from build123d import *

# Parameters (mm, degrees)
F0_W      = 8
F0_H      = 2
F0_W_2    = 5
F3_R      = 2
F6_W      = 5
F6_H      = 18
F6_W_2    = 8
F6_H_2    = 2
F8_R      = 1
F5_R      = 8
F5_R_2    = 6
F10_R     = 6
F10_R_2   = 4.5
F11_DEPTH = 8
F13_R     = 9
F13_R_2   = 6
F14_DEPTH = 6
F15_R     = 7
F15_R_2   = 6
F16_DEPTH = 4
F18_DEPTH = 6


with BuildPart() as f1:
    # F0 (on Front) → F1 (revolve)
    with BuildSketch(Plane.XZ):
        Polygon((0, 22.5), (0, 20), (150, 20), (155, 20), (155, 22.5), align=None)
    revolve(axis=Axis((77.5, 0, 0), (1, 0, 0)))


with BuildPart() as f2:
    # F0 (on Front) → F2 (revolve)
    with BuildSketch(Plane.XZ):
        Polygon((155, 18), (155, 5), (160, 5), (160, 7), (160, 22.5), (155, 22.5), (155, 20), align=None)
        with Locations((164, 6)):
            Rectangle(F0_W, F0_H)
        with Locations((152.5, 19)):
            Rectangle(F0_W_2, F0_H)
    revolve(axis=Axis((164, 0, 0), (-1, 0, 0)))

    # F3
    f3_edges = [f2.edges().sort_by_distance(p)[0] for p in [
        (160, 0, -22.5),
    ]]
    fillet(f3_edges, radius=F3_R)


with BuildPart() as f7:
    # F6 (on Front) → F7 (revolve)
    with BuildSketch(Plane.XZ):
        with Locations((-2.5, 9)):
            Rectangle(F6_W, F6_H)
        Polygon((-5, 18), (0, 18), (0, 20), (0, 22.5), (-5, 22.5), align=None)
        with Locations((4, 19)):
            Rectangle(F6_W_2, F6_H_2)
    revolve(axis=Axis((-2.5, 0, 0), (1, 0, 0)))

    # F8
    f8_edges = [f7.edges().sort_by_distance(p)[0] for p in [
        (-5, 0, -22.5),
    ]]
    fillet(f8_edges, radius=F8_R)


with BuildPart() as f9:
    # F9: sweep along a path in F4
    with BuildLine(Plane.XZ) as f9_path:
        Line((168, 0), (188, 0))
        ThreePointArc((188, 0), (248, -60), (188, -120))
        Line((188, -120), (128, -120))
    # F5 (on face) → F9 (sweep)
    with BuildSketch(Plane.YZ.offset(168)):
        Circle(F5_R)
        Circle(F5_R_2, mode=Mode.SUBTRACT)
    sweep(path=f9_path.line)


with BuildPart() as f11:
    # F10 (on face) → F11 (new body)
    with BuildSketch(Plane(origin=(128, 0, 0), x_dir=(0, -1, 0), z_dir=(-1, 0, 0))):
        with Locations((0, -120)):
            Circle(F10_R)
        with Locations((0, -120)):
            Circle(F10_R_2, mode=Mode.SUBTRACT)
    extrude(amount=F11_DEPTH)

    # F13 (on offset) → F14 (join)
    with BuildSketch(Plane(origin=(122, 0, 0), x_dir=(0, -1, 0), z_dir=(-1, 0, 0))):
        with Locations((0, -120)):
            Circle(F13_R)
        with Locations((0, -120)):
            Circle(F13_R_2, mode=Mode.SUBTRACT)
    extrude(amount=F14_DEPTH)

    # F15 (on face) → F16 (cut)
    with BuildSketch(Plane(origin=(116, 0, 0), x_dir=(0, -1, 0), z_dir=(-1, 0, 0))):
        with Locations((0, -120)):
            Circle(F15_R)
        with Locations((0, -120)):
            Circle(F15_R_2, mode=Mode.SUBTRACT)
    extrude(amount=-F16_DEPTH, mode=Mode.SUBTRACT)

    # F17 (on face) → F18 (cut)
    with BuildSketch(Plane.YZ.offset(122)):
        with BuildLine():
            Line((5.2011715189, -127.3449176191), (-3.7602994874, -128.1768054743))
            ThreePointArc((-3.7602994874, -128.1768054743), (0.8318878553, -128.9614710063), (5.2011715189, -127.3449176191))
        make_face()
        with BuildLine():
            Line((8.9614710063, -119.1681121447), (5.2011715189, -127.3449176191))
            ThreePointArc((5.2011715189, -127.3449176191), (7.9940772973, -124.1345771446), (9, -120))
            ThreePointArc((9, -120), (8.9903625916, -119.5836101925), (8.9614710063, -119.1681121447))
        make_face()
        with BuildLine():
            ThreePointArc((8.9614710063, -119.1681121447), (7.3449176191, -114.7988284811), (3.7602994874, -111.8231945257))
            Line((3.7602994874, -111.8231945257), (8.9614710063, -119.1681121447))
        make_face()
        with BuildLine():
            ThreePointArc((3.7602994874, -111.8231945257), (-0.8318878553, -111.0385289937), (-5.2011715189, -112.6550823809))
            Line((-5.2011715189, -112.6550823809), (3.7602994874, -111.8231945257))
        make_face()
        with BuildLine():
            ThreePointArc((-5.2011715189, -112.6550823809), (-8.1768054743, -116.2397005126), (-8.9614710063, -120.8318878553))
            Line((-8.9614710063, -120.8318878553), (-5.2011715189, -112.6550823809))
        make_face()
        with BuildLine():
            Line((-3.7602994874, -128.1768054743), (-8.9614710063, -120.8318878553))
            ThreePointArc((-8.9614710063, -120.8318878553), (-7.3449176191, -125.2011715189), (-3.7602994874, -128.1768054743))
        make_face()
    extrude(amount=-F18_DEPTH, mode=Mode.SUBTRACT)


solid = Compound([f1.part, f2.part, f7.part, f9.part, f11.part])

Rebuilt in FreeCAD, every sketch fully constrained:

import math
import FreeCAD as App
import Part
import Sketcher
Q = App.Units.Quantity


def edges_at(feature, points):
    """Names of the edges that pass closest to the given points."""
    edges = feature.Shape.Edges
    near = lambda p: min(range(len(edges)), key=lambda i: edges[i].distToShape(Part.Vertex(*p))[0])
    return sorted({f"Edge{near(p) + 1}" for p in points})

doc = App.newDocument("Part")
body = doc.addObject("PartDesign::Body", "Body")

# Sketch on XZ plane
sketch1 = body.newObject("Sketcher::SketchObject", "Sketch")
sketch1.AttachmentSupport = (doc.getObject("XZ_Plane"), [""])
sketch1.MapMode = "FlatFace"
sketch1.addGeometry(Part.LineSegment(App.Vector(0, 22.5, 0), App.Vector(0, 20, 0)), False)
sketch1.addGeometry(Part.LineSegment(App.Vector(0, 20, 0), App.Vector(155, 20, 0)), False)
sketch1.addGeometry(Part.LineSegment(App.Vector(155, 20, 0), App.Vector(155, 22.5, 0)), False)
sketch1.addGeometry(Part.LineSegment(App.Vector(155, 22.5, 0), App.Vector(0, 22.5, 0)), False)
sketch1.addConstraint(Sketcher.Constraint("Coincident", 0, 2, 1, 1))
sketch1.addConstraint(Sketcher.Constraint("Coincident", 1, 2, 2, 1))
sketch1.addConstraint(Sketcher.Constraint("Coincident", 2, 2, 3, 1))
sketch1.addConstraint(Sketcher.Constraint("Coincident", 3, 2, 0, 1))
sketch1.addConstraint(Sketcher.Constraint("Vertical", 0))
sketch1.addConstraint(Sketcher.Constraint("Horizontal", 1))
sketch1.addConstraint(Sketcher.Constraint("Vertical", 2))
sketch1.addConstraint(Sketcher.Constraint("Horizontal", 3))
sketch1.addConstraint(Sketcher.Constraint("PointOnObject", 0, 2, -2))
sketch1.addConstraint(Sketcher.Constraint("DistanceX", 1, 1, 1, 2, Q("155 mm")))
sketch1.addConstraint(Sketcher.Constraint("DistanceY", 0, 2, 0, 1, Q("2.5 mm")))
sketch1.addConstraint(Sketcher.Constraint("DistanceY", -1, 1, 0, 2, Q("20 mm")))
revolution = body.newObject("PartDesign::Revolution", "Revolution")
revolution.Profile = sketch1
revolution.ReferenceAxis = (sketch1, ["H_Axis"])
revolution.Angle = 360
body2 = doc.addObject("PartDesign::Body", "Body001")

# Sketch on XZ plane
sketch2 = body2.newObject("Sketcher::SketchObject", "Sketch001")
sketch2.AttachmentSupport = (doc.getObject("XZ_Plane001"), [""])
sketch2.MapMode = "FlatFace"
sketch2.addGeometry(Part.LineSegment(App.Vector(155, 5, 0), App.Vector(168, 5, 0)), False)
sketch2.addGeometry(Part.LineSegment(App.Vector(168, 5, 0), App.Vector(168, 7, 0)), False)
sketch2.addGeometry(Part.LineSegment(App.Vector(168, 7, 0), App.Vector(160, 7, 0)), False)
sketch2.addGeometry(Part.LineSegment(App.Vector(160, 7, 0), App.Vector(160, 22.5, 0)), False)
sketch2.addGeometry(Part.LineSegment(App.Vector(160, 22.5, 0), App.Vector(155, 22.5, 0)), False)
sketch2.addGeometry(Part.LineSegment(App.Vector(155, 22.5, 0), App.Vector(155, 20, 0)), False)
sketch2.addGeometry(Part.LineSegment(App.Vector(155, 20, 0), App.Vector(150, 20, 0)), False)
sketch2.addGeometry(Part.LineSegment(App.Vector(150, 20, 0), App.Vector(150, 18, 0)), False)
sketch2.addGeometry(Part.LineSegment(App.Vector(150, 18, 0), App.Vector(155, 18, 0)), False)
sketch2.addGeometry(Part.LineSegment(App.Vector(155, 18, 0), App.Vector(155, 5, 0)), False)
sketch2.addConstraint(Sketcher.Constraint("Coincident", 0, 2, 1, 1))
sketch2.addConstraint(Sketcher.Constraint("Coincident", 1, 2, 2, 1))
sketch2.addConstraint(Sketcher.Constraint("Coincident", 2, 2, 3, 1))
sketch2.addConstraint(Sketcher.Constraint("Coincident", 3, 2, 4, 1))
sketch2.addConstraint(Sketcher.Constraint("Coincident", 4, 2, 5, 1))
sketch2.addConstraint(Sketcher.Constraint("Coincident", 5, 2, 6, 1))
sketch2.addConstraint(Sketcher.Constraint("Coincident", 6, 2, 7, 1))
sketch2.addConstraint(Sketcher.Constraint("Coincident", 7, 2, 8, 1))
sketch2.addConstraint(Sketcher.Constraint("Coincident", 8, 2, 9, 1))
sketch2.addConstraint(Sketcher.Constraint("Coincident", 9, 2, 0, 1))
sketch2.addConstraint(Sketcher.Constraint("Horizontal", 0))
sketch2.addConstraint(Sketcher.Constraint("Vertical", 1))
sketch2.addConstraint(Sketcher.Constraint("Horizontal", 2))
sketch2.addConstraint(Sketcher.Constraint("Vertical", 3))
sketch2.addConstraint(Sketcher.Constraint("Horizontal", 4))
sketch2.addConstraint(Sketcher.Constraint("Vertical", 5))
sketch2.addConstraint(Sketcher.Constraint("Horizontal", 6))
sketch2.addConstraint(Sketcher.Constraint("Vertical", 7))
sketch2.addConstraint(Sketcher.Constraint("Horizontal", 8))
sketch2.addConstraint(Sketcher.Constraint("Vertical", 9))
sketch2.addConstraint(Sketcher.Constraint("Vertical", 5, 2, 8, 2))
sketch2.addConstraint(Sketcher.Constraint("Equal", 4, 6))
sketch2.addConstraint(Sketcher.Constraint("Equal", 1, 7))
sketch2.addConstraint(Sketcher.Constraint("Equal", 0, 9))
sketch2.addConstraint(Sketcher.Constraint("DistanceX", 0, 1, 0, 2, Q("13 mm")))
sketch2.addConstraint(Sketcher.Constraint("DistanceX", 2, 2, 2, 1, Q("8 mm")))
sketch2.addConstraint(Sketcher.Constraint("DistanceY", 1, 1, 1, 2, Q("2 mm")))
sketch2.addConstraint(Sketcher.Constraint("DistanceY", 3, 1, 3, 2, Q("15.5 mm")))
sketch2.addConstraint(Sketcher.Constraint("DistanceX", -1, 1, 0, 2, Q("168 mm")))
sketch2.addConstraint(Sketcher.Constraint("DistanceY", -1, 1, 0, 2, Q("5 mm")))
revolution2 = body2.newObject("PartDesign::Revolution", "Revolution001")
revolution2.Profile = sketch2
revolution2.ReferenceAxis = (sketch2, ["H_Axis"])
revolution2.Angle = 360
doc.recompute()

fillet = body2.newObject("PartDesign::Fillet", "Fillet")
fillet.Base = (revolution2, edges_at(revolution2, [(160, 0, -22.5)]))
fillet.Radius = 2
body3 = doc.addObject("PartDesign::Body", "Body002")

# Sketch on XZ plane
sketch3 = body3.newObject("Sketcher::SketchObject", "Sketch002")
sketch3.AttachmentSupport = (doc.getObject("XZ_Plane002"), [""])
sketch3.MapMode = "FlatFace"
sketch3.addGeometry(Part.LineSegment(App.Vector(-5, 0, 0), App.Vector(0, 0, 0)), False)
sketch3.addGeometry(Part.LineSegment(App.Vector(0, 0, 0), App.Vector(0, 18, 0)), False)
sketch3.addGeometry(Part.LineSegment(App.Vector(0, 18, 0), App.Vector(8, 18, 0)), False)
sketch3.addGeometry(Part.LineSegment(App.Vector(8, 18, 0), App.Vector(8, 20, 0)), False)
sketch3.addGeometry(Part.LineSegment(App.Vector(8, 20, 0), App.Vector(0, 20, 0)), False)
sketch3.addGeometry(Part.LineSegment(App.Vector(0, 20, 0), App.Vector(0, 22.5, 0)), False)
sketch3.addGeometry(Part.LineSegment(App.Vector(0, 22.5, 0), App.Vector(-5, 22.5, 0)), False)
sketch3.addGeometry(Part.LineSegment(App.Vector(-5, 22.5, 0), App.Vector(-5, 0, 0)), False)
sketch3.addConstraint(Sketcher.Constraint("Coincident", 0, 2, 1, 1))
sketch3.addConstraint(Sketcher.Constraint("Coincident", 1, 2, 2, 1))
sketch3.addConstraint(Sketcher.Constraint("Coincident", 2, 2, 3, 1))
sketch3.addConstraint(Sketcher.Constraint("Coincident", 3, 2, 4, 1))
sketch3.addConstraint(Sketcher.Constraint("Coincident", 4, 2, 5, 1))
sketch3.addConstraint(Sketcher.Constraint("Coincident", 5, 2, 6, 1))
sketch3.addConstraint(Sketcher.Constraint("Coincident", 6, 2, 7, 1))
sketch3.addConstraint(Sketcher.Constraint("Coincident", 7, 2, 0, 1))
sketch3.addConstraint(Sketcher.Constraint("Horizontal", 0))
sketch3.addConstraint(Sketcher.Constraint("Vertical", 1))
sketch3.addConstraint(Sketcher.Constraint("Horizontal", 2))
sketch3.addConstraint(Sketcher.Constraint("Vertical", 3))
sketch3.addConstraint(Sketcher.Constraint("Horizontal", 4))
sketch3.addConstraint(Sketcher.Constraint("Vertical", 5))
sketch3.addConstraint(Sketcher.Constraint("Horizontal", 6))
sketch3.addConstraint(Sketcher.Constraint("Vertical", 7))
sketch3.addConstraint(Sketcher.Constraint("Coincident", 0, 2, -1, 1))
sketch3.addConstraint(Sketcher.Constraint("PointOnObject", 4, 2, -2))
sketch3.addConstraint(Sketcher.Constraint("DistanceX", 0, 1, 0, 2, Q("5 mm")))
sketch3.addConstraint(Sketcher.Constraint("DistanceX", 2, 1, 2, 2, Q("8 mm")))
sketch3.addConstraint(Sketcher.Constraint("DistanceY", 1, 1, 1, 2, Q("18 mm")))
sketch3.addConstraint(Sketcher.Constraint("DistanceY", 3, 1, 3, 2, Q("2 mm")))
sketch3.addConstraint(Sketcher.Constraint("DistanceY", 5, 1, 5, 2, Q("2.5 mm")))
revolution3 = body3.newObject("PartDesign::Revolution", "Revolution002")
revolution3.Profile = sketch3
revolution3.ReferenceAxis = (sketch3, ["H_Axis"])
revolution3.Angle = 360
doc.recompute()

fillet2 = body3.newObject("PartDesign::Fillet", "Fillet001")
fillet2.Base = (revolution3, edges_at(revolution3, [(-5, 0, -22.5)]))
fillet2.Radius = 1
body4 = doc.addObject("PartDesign::Body", "Body003")

# Sketch on YZ plane
sketch4 = body4.newObject("Sketcher::SketchObject", "Sketch003")
sketch4.AttachmentSupport = (doc.getObject("YZ_Plane003"), [""])
sketch4.MapMode = "FlatFace"
sketch4.AttachmentOffset = App.Placement(App.Vector(0, 0, 168), App.Rotation())
sketch4.addGeometry(Part.Circle(App.Vector(0, 0, 0), App.Vector(0, 0, 1), 8), False)
sketch4.addGeometry(Part.Circle(App.Vector(0, 0, 0), App.Vector(0, 0, 1), 6), False)
sketch4.addConstraint(Sketcher.Constraint("Coincident", 0, 3, -1, 1))
sketch4.addConstraint(Sketcher.Constraint("Coincident", 1, 3, -1, 1))
sketch4.addConstraint(Sketcher.Constraint("Diameter", 0, Q("16 mm")))
sketch4.addConstraint(Sketcher.Constraint("Diameter", 1, Q("12 mm")))

# Sketch on XZ plane
sketch5 = body4.newObject("Sketcher::SketchObject", "Sketch004")
sketch5.AttachmentSupport = (doc.getObject("XZ_Plane003"), [""])
sketch5.MapMode = "FlatFace"
sketch5.addGeometry(Part.LineSegment(App.Vector(168, 0, 0), App.Vector(188, 0, 0)), False)
sketch5.addGeometry(Part.ArcOfCircle(Part.Circle(App.Vector(188, -60, 0), App.Vector(0, 0, 1), 60), math.radians(-90), math.radians(90)), False)
sketch5.addGeometry(Part.LineSegment(App.Vector(188, -120, 0), App.Vector(128, -120, 0)), False)
sketch5.addConstraint(Sketcher.Constraint("Tangent", 0, 2, 1, 2))
sketch5.addConstraint(Sketcher.Constraint("Tangent", 1, 1, 2, 1))
sketch5.addConstraint(Sketcher.Constraint("Horizontal", 0))
sketch5.addConstraint(Sketcher.Constraint("Horizontal", 2))
sketch5.addConstraint(Sketcher.Constraint("PointOnObject", 0, 1, -1))
sketch5.addConstraint(Sketcher.Constraint("Radius", 1, Q("60 mm")))
sketch5.addConstraint(Sketcher.Constraint("DistanceX", 0, 1, 0, 2, Q("20 mm")))
sketch5.addConstraint(Sketcher.Constraint("DistanceX", 2, 2, 2, 1, Q("60 mm")))
sketch5.addConstraint(Sketcher.Constraint("DistanceX", -1, 1, 1, 3, Q("188 mm")))
doc.recompute()

additivepipe = body4.newObject("PartDesign::AdditivePipe", "AdditivePipe")
additivepipe.Profile = sketch4
additivepipe.Spine = (sketch5, ["Edge1", "Edge2", "Edge3"])
body5 = doc.addObject("PartDesign::Body", "Body004")

# Sketch on YZ plane
sketch6 = body5.newObject("Sketcher::SketchObject", "Sketch005")
sketch6.AttachmentSupport = (doc.getObject("YZ_Plane004"), [""])
sketch6.MapMode = "FlatFace"
sketch6.AttachmentOffset = App.Placement(App.Vector(0, 0, 128), App.Rotation())
sketch6.addGeometry(Part.Circle(App.Vector(0, -120, 0), App.Vector(0, 0, 1), 6), False)
sketch6.addGeometry(Part.Circle(App.Vector(0, -120, 0), App.Vector(0, 0, 1), 4.5), False)
sketch6.addConstraint(Sketcher.Constraint("Coincident", 1, 3, 0, 3))
sketch6.addConstraint(Sketcher.Constraint("PointOnObject", 0, 3, -2))
sketch6.addConstraint(Sketcher.Constraint("Diameter", 0, Q("12 mm")))
sketch6.addConstraint(Sketcher.Constraint("Diameter", 1, Q("9 mm")))
sketch6.addConstraint(Sketcher.Constraint("DistanceY", 0, 3, -1, 1, Q("120 mm")))
pad1 = body5.newObject("PartDesign::Pad", "Pad")
pad1.Profile = sketch6
pad1.Length = 8
pad1.Reversed = True

# Sketch on YZ plane
sketch7 = body5.newObject("Sketcher::SketchObject", "Sketch006")
sketch7.AttachmentSupport = (doc.getObject("YZ_Plane004"), [""])
sketch7.MapMode = "FlatFace"
sketch7.AttachmentOffset = App.Placement(App.Vector(0, 0, 122), App.Rotation())
sketch7.addGeometry(Part.Circle(App.Vector(0, -120, 0), App.Vector(0, 0, 1), 9), False)
sketch7.addGeometry(Part.Circle(App.Vector(0, -120, 0), App.Vector(0, 0, 1), 6), False)
sketch7.addConstraint(Sketcher.Constraint("Coincident", 1, 3, 0, 3))
sketch7.addConstraint(Sketcher.Constraint("PointOnObject", 0, 3, -2))
sketch7.addConstraint(Sketcher.Constraint("Diameter", 0, Q("18 mm")))
sketch7.addConstraint(Sketcher.Constraint("Diameter", 1, Q("12 mm")))
sketch7.addConstraint(Sketcher.Constraint("DistanceY", 0, 3, -1, 1, Q("120 mm")))
pad2 = body5.newObject("PartDesign::Pad", "Pad001")
pad2.Profile = sketch7
pad2.Length = 6
pad2.Reversed = True

# Sketch on YZ plane
sketch8 = body5.newObject("Sketcher::SketchObject", "Sketch007")
sketch8.AttachmentSupport = (doc.getObject("YZ_Plane004"), [""])
sketch8.MapMode = "FlatFace"
sketch8.AttachmentOffset = App.Placement(App.Vector(0, 0, 116), App.Rotation())
sketch8.addGeometry(Part.Circle(App.Vector(0, -120, 0), App.Vector(0, 0, 1), 7), False)
sketch8.addGeometry(Part.Circle(App.Vector(0, -120, 0), App.Vector(0, 0, 1), 6), False)
sketch8.addConstraint(Sketcher.Constraint("Coincident", 1, 3, 0, 3))
sketch8.addConstraint(Sketcher.Constraint("PointOnObject", 0, 3, -2))
sketch8.addConstraint(Sketcher.Constraint("Diameter", 0, Q("14 mm")))
sketch8.addConstraint(Sketcher.Constraint("Diameter", 1, Q("12 mm")))
sketch8.addConstraint(Sketcher.Constraint("DistanceY", 0, 3, -1, 1, Q("120 mm")))
pocket1 = body5.newObject("PartDesign::Pocket", "Pocket")
pocket1.Profile = sketch8
pocket1.Length = 4
pocket1.Reversed = True

# Sketch on YZ plane
sketch9 = body5.newObject("Sketcher::SketchObject", "Sketch008")
sketch9.AttachmentSupport = (doc.getObject("YZ_Plane004"), [""])
sketch9.MapMode = "FlatFace"
sketch9.AttachmentOffset = App.Placement(App.Vector(0, 0, 122), App.Rotation())
sketch9.addGeometry(Part.LineSegment(App.Vector(5.2, -127.3, 0), App.Vector(-3.8, -128.2, 0)), False)
sketch9.addGeometry(Part.ArcOfCircle(Part.Circle(App.Vector(0, -120, 0), App.Vector(0, 0, 1), 9), math.radians(-115), math.radians(-55)), False)
sketch9.addGeometry(Part.LineSegment(App.Vector(9, -119.2, 0), App.Vector(5.2, -127.3, 0)), False)
sketch9.addGeometry(Part.ArcOfCircle(Part.Circle(App.Vector(0, -120, 0), App.Vector(0, 0, 1), 9), math.radians(-55), math.radians(0)), False)
sketch9.addGeometry(Part.ArcOfCircle(Part.Circle(App.Vector(0, -120, 0), App.Vector(0, 0, 1), 9), math.radians(0), math.radians(5.3)), False)
sketch9.addGeometry(Part.ArcOfCircle(Part.Circle(App.Vector(0, -120, 0), App.Vector(0, 0, 1), 9), math.radians(5), math.radians(65)), False)
sketch9.addGeometry(Part.LineSegment(App.Vector(3.8, -111.8, 0), App.Vector(9, -119.2, 0)), False)
sketch9.addGeometry(Part.ArcOfCircle(Part.Circle(App.Vector(0, -120, 0), App.Vector(0, 0, 1), 9), math.radians(65), math.radians(125)), False)
sketch9.addGeometry(Part.LineSegment(App.Vector(-5.2, -112.7, 0), App.Vector(3.8, -111.8, 0)), False)
sketch9.addGeometry(Part.ArcOfCircle(Part.Circle(App.Vector(0, -120, 0), App.Vector(0, 0, 1), 9), math.radians(125), math.radians(185)), False)
sketch9.addGeometry(Part.LineSegment(App.Vector(-9, -120.8, 0), App.Vector(-5.2, -112.7, 0)), False)
sketch9.addGeometry(Part.LineSegment(App.Vector(-3.8, -128.2, 0), App.Vector(-9, -120.8, 0)), False)
sketch9.addGeometry(Part.ArcOfCircle(Part.Circle(App.Vector(0, -120, 0), App.Vector(0, 0, 1), 9), math.radians(-175), math.radians(-115)), False)
sketch9.addConstraint(Sketcher.Constraint("Coincident", 0, 1, 1, 2))
sketch9.addConstraint(Sketcher.Constraint("Coincident", 1, 1, 0, 2))
sketch9.addConstraint(Sketcher.Constraint("Coincident", 2, 2, 3, 1))
sketch9.addConstraint(Sketcher.Constraint("Tangent", 3, 2, 4, 1))
sketch9.addConstraint(Sketcher.Constraint("Coincident", 4, 2, 2, 1))
sketch9.addConstraint(Sketcher.Constraint("Coincident", 5, 1, 6, 2))
sketch9.addConstraint(Sketcher.Constraint("Coincident", 6, 1, 5, 2))
sketch9.addConstraint(Sketcher.Constraint("Coincident", 7, 1, 8, 2))
sketch9.addConstraint(Sketcher.Constraint("Coincident", 8, 1, 7, 2))
sketch9.addConstraint(Sketcher.Constraint("Coincident", 9, 1, 10, 2))
sketch9.addConstraint(Sketcher.Constraint("Coincident", 10, 1, 9, 2))
sketch9.addConstraint(Sketcher.Constraint("Coincident", 11, 1, 12, 2))
sketch9.addConstraint(Sketcher.Constraint("Coincident", 12, 1, 11, 2))
sketch9.addConstraint(Sketcher.Constraint("Coincident", 3, 3, 1, 3))
sketch9.addConstraint(Sketcher.Constraint("Coincident", 5, 3, 1, 3))
sketch9.addConstraint(Sketcher.Constraint("Coincident", 7, 3, 1, 3))
sketch9.addConstraint(Sketcher.Constraint("Coincident", 9, 3, 1, 3))
sketch9.addConstraint(Sketcher.Constraint("Coincident", 12, 3, 1, 3))
sketch9.addConstraint(Sketcher.Constraint("Coincident", 2, 2, 0, 1))
sketch9.addConstraint(Sketcher.Constraint("Coincident", 5, 1, 4, 2))
sketch9.addConstraint(Sketcher.Constraint("Coincident", 7, 1, 6, 1))
sketch9.addConstraint(Sketcher.Constraint("Coincident", 9, 1, 8, 1))
sketch9.addConstraint(Sketcher.Constraint("Coincident", 11, 1, 1, 1))
sketch9.addConstraint(Sketcher.Constraint("Coincident", 12, 1, 10, 1))
sketch9.addConstraint(Sketcher.Constraint("PointOnObject", 1, 3, -2))
sketch9.addConstraint(Sketcher.Constraint("Parallel", 0, 8))
sketch9.addConstraint(Sketcher.Constraint("Parallel", 2, 10))
sketch9.addConstraint(Sketcher.Constraint("Horizontal", 12, 3, 3, 2))
sketch9.addConstraint(Sketcher.Constraint("Equal", 0, 2))
sketch9.addConstraint(Sketcher.Constraint("Equal", 2, 6))
sketch9.addConstraint(Sketcher.Constraint("Equal", 6, 8))
sketch9.addConstraint(Sketcher.Constraint("Radius", 1, Q("9 mm")))
sketch9.addConstraint(Sketcher.Constraint("DistanceY", 1, 3, -1, 1, Q("120 mm")))
sketch9.addConstraint(Sketcher.Constraint("DistanceX", 1, 1, -1, 1, Q("3.760299 mm")))
pocket2 = body5.newObject("PartDesign::Pocket", "Pocket001")
pocket2.Profile = sketch9
pocket2.Length = 6

doc.recompute()
